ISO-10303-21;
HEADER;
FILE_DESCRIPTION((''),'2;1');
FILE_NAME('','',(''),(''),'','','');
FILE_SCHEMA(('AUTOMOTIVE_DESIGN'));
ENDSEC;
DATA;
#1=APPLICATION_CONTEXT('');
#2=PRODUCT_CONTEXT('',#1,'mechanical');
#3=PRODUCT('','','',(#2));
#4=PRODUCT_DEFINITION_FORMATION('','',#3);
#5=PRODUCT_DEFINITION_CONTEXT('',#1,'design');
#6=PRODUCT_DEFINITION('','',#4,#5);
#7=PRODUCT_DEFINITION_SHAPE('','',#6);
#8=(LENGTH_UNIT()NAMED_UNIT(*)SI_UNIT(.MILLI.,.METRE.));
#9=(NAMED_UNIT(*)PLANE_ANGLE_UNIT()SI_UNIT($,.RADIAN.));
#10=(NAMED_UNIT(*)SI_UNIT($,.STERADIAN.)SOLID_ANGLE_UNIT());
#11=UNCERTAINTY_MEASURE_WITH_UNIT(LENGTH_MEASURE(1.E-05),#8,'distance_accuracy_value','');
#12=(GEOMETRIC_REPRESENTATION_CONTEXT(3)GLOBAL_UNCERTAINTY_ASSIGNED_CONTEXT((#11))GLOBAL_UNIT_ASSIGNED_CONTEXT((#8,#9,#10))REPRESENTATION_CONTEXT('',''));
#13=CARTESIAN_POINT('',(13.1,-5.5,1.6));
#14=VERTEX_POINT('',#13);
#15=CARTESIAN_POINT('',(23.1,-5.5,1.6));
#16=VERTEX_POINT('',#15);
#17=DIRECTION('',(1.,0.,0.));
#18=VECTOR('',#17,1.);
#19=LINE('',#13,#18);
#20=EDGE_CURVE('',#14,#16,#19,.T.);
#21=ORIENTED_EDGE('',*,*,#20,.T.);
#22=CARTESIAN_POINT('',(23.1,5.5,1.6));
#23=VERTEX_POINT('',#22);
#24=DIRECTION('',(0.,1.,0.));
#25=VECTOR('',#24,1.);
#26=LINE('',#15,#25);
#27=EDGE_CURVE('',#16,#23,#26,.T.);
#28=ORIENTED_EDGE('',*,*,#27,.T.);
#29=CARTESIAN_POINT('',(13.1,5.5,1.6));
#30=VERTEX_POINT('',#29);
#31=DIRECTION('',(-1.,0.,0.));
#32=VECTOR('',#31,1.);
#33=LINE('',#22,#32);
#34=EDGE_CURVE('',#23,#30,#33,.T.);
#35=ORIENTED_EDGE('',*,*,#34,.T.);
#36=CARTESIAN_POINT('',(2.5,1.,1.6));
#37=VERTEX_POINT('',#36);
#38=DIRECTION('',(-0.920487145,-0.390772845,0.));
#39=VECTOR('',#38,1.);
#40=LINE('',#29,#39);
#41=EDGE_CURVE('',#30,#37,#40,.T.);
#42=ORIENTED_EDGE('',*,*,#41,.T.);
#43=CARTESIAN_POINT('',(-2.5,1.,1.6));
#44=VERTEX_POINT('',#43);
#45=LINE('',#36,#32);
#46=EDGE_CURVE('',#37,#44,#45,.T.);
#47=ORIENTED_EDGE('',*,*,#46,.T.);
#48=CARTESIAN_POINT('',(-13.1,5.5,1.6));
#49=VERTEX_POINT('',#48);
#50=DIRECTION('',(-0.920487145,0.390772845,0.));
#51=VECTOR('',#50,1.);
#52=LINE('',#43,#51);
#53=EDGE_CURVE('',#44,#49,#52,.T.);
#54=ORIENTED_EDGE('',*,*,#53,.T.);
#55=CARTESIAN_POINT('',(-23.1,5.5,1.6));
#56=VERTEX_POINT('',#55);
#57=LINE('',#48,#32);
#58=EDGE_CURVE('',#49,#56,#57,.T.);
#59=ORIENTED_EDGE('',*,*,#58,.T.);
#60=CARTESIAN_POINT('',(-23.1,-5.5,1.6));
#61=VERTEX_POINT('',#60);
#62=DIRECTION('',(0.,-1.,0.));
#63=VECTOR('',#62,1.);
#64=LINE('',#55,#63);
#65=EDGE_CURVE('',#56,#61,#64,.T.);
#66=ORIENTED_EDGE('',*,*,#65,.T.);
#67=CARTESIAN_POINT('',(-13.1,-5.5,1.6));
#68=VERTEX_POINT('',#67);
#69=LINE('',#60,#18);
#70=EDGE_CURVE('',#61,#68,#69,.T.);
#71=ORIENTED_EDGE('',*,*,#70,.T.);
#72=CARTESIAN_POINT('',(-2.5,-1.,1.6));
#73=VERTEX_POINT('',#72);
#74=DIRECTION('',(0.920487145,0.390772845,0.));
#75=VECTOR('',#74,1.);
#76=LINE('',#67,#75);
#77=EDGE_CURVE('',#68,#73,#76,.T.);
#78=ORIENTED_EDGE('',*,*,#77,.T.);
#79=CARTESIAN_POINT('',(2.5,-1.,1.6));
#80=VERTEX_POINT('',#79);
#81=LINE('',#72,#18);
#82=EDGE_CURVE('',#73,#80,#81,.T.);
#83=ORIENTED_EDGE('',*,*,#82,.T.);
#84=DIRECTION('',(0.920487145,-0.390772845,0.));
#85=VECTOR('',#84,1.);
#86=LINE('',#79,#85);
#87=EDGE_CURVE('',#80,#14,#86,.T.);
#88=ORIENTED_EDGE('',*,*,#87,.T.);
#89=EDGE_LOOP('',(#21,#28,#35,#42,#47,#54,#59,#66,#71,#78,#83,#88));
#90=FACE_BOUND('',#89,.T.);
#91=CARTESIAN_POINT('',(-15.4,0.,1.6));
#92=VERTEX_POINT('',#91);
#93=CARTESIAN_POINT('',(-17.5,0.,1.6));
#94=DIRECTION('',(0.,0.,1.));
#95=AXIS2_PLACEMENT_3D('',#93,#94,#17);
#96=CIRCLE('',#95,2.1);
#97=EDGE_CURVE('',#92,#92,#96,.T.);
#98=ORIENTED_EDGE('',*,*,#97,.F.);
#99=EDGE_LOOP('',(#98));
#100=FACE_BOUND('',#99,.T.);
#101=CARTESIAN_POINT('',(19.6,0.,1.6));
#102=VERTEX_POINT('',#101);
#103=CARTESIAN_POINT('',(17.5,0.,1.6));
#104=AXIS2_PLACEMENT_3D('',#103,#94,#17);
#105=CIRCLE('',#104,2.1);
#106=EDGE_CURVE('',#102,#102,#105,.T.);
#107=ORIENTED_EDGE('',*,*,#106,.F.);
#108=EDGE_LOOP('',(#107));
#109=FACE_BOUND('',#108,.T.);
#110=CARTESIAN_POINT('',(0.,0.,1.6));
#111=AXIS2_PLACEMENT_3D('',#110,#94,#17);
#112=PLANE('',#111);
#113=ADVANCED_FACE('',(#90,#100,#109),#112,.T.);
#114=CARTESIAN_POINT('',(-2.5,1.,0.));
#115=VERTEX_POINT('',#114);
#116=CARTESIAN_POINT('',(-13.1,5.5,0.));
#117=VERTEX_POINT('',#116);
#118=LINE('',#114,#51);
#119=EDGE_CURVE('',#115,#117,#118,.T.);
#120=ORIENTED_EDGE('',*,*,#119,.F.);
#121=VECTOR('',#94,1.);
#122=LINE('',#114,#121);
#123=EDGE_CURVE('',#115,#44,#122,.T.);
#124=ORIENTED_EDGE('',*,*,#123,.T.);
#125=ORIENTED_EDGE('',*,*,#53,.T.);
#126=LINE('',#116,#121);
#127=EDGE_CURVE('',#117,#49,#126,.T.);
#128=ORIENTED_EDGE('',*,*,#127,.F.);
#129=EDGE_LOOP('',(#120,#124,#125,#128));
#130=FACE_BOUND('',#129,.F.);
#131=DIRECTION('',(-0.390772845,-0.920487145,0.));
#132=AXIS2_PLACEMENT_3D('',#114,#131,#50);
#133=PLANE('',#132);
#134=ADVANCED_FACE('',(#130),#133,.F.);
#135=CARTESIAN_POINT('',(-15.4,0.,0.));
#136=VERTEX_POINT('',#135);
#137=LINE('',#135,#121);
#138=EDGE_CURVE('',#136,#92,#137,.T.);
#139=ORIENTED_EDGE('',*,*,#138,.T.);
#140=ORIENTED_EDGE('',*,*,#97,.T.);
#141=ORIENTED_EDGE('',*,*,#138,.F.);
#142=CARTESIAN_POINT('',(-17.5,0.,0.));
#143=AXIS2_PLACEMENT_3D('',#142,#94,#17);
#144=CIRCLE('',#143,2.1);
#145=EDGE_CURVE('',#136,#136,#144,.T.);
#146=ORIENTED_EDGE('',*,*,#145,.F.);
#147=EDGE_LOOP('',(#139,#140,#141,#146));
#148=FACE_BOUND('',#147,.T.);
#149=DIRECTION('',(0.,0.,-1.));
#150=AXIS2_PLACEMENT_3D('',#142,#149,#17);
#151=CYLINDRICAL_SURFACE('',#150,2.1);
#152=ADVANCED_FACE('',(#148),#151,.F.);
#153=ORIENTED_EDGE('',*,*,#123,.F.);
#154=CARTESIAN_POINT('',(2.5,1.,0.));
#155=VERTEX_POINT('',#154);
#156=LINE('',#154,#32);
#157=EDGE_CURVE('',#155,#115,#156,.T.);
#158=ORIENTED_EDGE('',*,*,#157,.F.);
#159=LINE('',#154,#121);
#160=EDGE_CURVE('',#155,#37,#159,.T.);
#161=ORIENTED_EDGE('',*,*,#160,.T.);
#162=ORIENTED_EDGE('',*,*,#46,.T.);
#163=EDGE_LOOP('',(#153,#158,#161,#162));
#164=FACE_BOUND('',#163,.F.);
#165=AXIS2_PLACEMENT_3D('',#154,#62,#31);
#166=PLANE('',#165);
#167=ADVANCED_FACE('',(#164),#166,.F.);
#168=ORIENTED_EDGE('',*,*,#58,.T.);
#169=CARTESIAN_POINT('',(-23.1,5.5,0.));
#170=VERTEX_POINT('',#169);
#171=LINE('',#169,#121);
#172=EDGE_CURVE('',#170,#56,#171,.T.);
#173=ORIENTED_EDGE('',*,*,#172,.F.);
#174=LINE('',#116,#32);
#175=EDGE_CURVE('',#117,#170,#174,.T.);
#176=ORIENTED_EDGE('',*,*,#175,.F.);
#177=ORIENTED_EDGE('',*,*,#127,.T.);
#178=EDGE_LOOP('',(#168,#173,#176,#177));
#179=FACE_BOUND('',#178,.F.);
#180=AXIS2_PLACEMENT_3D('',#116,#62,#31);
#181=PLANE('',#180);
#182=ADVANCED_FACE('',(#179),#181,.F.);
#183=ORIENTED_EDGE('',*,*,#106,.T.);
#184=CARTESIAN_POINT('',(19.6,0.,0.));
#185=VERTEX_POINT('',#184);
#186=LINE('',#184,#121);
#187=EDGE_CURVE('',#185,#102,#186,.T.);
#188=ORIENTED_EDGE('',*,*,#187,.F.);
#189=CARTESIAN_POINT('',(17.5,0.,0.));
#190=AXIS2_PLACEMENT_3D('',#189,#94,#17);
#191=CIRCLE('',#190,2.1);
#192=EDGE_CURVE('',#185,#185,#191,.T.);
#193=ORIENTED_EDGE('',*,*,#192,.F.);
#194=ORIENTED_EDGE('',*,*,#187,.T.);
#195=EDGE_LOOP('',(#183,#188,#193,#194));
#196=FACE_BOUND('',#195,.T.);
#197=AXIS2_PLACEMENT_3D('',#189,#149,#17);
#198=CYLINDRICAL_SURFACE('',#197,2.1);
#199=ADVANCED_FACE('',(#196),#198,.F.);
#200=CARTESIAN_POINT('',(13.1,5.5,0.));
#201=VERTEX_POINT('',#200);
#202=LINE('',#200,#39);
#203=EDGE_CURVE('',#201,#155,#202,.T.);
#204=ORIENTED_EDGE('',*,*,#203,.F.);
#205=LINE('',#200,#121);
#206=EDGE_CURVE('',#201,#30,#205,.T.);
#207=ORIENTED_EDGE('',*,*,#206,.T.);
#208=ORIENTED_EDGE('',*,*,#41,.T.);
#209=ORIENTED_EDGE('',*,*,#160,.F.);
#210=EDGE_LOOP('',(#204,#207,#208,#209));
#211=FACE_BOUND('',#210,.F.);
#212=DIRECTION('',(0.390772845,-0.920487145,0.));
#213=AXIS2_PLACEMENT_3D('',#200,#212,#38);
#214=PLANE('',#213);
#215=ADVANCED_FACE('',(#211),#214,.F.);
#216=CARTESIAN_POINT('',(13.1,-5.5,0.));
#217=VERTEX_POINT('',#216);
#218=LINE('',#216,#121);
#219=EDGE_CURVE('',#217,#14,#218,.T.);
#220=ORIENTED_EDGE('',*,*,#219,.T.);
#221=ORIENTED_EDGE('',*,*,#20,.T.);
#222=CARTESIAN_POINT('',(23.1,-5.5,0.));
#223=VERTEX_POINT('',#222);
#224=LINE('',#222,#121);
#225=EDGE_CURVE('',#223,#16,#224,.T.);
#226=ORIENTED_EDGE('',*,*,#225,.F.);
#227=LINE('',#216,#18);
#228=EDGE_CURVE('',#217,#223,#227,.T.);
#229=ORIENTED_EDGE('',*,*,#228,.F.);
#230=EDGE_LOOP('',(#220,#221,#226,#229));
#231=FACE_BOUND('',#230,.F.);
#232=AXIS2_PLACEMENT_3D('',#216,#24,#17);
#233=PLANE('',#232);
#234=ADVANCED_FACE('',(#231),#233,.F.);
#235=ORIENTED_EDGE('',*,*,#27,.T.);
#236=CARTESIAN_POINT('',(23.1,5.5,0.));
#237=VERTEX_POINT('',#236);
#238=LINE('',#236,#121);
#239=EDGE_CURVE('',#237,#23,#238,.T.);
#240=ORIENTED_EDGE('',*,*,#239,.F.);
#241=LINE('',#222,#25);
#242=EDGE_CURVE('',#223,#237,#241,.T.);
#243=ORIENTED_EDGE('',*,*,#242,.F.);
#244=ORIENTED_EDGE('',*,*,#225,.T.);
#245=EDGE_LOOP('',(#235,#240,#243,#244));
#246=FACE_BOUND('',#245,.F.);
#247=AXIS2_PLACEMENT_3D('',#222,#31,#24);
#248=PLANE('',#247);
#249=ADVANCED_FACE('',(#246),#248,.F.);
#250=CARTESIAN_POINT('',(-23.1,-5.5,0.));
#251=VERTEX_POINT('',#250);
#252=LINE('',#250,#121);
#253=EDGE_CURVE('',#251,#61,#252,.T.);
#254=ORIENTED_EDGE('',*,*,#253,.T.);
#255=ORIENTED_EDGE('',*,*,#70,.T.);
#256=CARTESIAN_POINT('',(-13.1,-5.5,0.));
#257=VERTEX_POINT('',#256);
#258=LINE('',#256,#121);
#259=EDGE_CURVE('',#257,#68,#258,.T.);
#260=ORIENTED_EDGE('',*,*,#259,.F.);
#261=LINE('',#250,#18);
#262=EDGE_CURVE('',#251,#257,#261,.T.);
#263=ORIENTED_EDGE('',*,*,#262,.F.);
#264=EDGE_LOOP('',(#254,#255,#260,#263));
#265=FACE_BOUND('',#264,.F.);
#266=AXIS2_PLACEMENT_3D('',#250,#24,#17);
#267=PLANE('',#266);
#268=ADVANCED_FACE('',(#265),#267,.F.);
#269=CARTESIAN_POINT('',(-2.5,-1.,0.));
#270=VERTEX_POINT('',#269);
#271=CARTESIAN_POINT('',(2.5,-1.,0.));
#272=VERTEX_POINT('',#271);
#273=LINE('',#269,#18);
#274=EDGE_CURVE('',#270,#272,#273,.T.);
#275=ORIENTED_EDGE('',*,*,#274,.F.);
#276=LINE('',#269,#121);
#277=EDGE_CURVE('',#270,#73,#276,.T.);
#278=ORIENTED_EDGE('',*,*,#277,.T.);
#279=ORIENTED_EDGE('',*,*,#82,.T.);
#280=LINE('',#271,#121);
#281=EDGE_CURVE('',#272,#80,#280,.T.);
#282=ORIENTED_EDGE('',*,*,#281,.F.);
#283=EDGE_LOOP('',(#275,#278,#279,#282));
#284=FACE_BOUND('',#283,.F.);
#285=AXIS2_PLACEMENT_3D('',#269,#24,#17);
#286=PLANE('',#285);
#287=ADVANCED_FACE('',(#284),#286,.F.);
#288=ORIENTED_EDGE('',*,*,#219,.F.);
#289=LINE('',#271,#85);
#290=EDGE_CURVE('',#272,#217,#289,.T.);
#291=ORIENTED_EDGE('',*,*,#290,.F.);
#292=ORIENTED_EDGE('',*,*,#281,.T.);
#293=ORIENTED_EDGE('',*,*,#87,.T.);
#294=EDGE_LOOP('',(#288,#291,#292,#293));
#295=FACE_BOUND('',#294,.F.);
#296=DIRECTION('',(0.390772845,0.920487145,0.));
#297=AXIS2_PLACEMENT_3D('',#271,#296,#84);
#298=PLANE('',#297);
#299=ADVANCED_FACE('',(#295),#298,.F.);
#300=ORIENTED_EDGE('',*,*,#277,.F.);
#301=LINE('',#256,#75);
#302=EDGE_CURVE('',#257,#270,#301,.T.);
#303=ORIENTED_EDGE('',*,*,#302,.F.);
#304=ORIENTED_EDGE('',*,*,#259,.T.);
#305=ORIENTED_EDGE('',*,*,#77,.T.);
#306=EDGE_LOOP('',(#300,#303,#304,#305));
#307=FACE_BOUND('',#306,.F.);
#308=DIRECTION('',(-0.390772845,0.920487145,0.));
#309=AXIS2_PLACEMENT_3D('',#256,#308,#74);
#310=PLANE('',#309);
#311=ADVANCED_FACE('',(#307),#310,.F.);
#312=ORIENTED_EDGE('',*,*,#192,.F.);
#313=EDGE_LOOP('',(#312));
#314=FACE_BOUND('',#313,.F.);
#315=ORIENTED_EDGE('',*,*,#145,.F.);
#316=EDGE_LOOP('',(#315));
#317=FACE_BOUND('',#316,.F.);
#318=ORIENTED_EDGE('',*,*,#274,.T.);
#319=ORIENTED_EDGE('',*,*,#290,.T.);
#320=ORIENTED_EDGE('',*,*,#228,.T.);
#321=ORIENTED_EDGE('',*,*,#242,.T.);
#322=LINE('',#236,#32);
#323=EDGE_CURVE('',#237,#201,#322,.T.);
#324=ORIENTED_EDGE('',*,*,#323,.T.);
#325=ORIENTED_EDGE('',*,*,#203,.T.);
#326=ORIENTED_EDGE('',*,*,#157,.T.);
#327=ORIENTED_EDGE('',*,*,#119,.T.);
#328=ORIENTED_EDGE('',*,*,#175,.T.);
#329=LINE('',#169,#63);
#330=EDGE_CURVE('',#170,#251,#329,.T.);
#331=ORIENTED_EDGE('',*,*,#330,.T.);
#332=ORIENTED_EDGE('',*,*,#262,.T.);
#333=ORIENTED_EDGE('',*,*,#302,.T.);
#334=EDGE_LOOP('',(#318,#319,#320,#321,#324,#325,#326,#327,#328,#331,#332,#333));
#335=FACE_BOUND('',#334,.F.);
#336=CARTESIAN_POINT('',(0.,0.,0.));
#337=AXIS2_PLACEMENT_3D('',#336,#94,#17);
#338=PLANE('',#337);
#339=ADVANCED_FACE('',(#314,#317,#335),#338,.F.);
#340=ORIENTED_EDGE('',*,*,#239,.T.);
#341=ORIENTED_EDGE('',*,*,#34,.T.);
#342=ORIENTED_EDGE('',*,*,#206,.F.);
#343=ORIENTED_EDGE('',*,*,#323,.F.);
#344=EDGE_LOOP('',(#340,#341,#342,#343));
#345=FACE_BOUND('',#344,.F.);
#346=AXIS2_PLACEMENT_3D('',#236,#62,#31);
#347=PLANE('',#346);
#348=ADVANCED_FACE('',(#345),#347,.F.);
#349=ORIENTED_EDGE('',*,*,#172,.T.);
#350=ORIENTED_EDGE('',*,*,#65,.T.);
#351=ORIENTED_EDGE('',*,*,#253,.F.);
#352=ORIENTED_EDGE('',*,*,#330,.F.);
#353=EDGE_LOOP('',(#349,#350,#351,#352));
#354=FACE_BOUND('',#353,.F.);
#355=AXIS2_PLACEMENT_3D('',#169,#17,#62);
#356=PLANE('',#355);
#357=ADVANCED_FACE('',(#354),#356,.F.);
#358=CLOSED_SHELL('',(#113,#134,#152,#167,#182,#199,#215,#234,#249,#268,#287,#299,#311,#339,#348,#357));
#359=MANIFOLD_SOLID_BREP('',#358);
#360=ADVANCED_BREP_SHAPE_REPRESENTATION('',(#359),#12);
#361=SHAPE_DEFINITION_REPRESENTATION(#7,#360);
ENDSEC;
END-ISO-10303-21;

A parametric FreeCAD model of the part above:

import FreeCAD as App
import Part
import Sketcher
from FreeCAD import Vector
Q = App.Units.Quantity

doc = App.newDocument("Part")
body = doc.addObject("PartDesign::Body", "Body")

# Sketch on XY plane
sketch1 = doc.addObject("Sketcher::SketchObject", "Sketch")
body.addObject(sketch1)
sketch1.AttachmentSupport = (doc.XY_Plane, [""])
sketch1.MapMode = "FlatFace"
sketch1.addGeometry([
    Part.LineSegment(Vector(-13.1, 5.5, 0), Vector(-23.1, 5.5, 0)),  # 0
    Part.LineSegment(Vector(-23.1, 5.5, 0), Vector(-23.1, -5.5, 0)),  # 1
    Part.LineSegment(Vector(-23.1, -5.5, 0), Vector(-13.1, -5.5, 0)),  # 2
    Part.LineSegment(Vector(-13.1, -5.5, 0), Vector(-2.5, -1, 0)),  # 3
    Part.LineSegment(Vector(-2.5, -1, 0), Vector(2.5, -1, 0)),  # 4
    Part.LineSegment(Vector(2.5, -1, 0), Vector(13.1, -5.5, 0)),  # 5
    Part.LineSegment(Vector(13.1, -5.5, 0), Vector(23.1, -5.5, 0)),  # 6
    Part.LineSegment(Vector(23.1, -5.5, 0), Vector(23.1, 5.5, 0)),  # 7
    Part.LineSegment(Vector(23.1, 5.5, 0), Vector(13.1, 5.5, 0)),  # 8
    Part.LineSegment(Vector(13.1, 5.5, 0), Vector(2.5, 1, 0)),  # 9
    Part.LineSegment(Vector(2.5, 1, 0), Vector(-2.5, 1, 0)),  # 10
    Part.LineSegment(Vector(-2.5, 1, 0), Vector(-13.1, 5.5, 0)),  # 11
    Part.Circle(Vector(-17.5, 0, 0), Vector(0, 0, 1), 2.1),  # 12
    Part.Circle(Vector(17.5, 0, 0), Vector(0, 0, 1), 2.1),  # 13
], False)
sketch1.addConstraint([
    Sketcher.Constraint("Coincident", 0, 2, 1, 1),
    Sketcher.Constraint("Coincident", 1, 2, 2, 1),
    Sketcher.Constraint("Coincident", 2, 2, 3, 1),
    Sketcher.Constraint("Coincident", 3, 2, 4, 1),
    Sketcher.Constraint("Coincident", 4, 2, 5, 1),
    Sketcher.Constraint("Coincident", 5, 2, 6, 1),
    Sketcher.Constraint("Coincident", 6, 2, 7, 1),
    Sketcher.Constraint("Coincident", 7, 2, 8, 1),
    Sketcher.Constraint("Coincident", 8, 2, 9, 1),
    Sketcher.Constraint("Coincident", 9, 2, 10, 1),
    Sketcher.Constraint("Coincident", 10, 2, 11, 1),
    Sketcher.Constraint("Coincident", 11, 2, 0, 1),
    Sketcher.Constraint("Horizontal", 0),
    Sketcher.Constraint("Vertical", 1),
    Sketcher.Constraint("Horizontal", 2),
    Sketcher.Constraint("Horizontal", 4),
    Sketcher.Constraint("Horizontal", 6),
    Sketcher.Constraint("Vertical", 7),
    Sketcher.Constraint("Horizontal", 8),
    Sketcher.Constraint("Horizontal", 10),
    Sketcher.Constraint("Equal", 12, 13),
    Sketcher.Constraint("Symmetric", 12, 3, 13, 3, -1, 1),
    Sketcher.Constraint("Symmetric", 0, 2, 6, 2, -1, 1),
    Sketcher.Constraint("Symmetric", 2, 2, 8, 2, -1, 1),
    Sketcher.Constraint("Symmetric", 3, 2, 9, 2, -1, 1),
    Sketcher.Constraint("Symmetric", 2, 2, 5, 2, -2),
    Sketcher.Constraint("PointOnObject", 12, 3, -1),
    Sketcher.Constraint("Parallel", 5, 11),
    Sketcher.Constraint("Vertical", 4, 2, 9, 2),
    Sketcher.Constraint("Vertical", 3, 2, 10, 2),
    Sketcher.Constraint("Diameter", 12, Q("4.2 mm")),
    Sketcher.Constraint("DistanceX", 0, 2, 0, 1, Q("10 mm")),
    Sketcher.Constraint("DistanceX", 4, 1, 4, 2, Q("5 mm")),
    Sketcher.Constraint("DistanceY", 1, 2, 1, 1, Q("11 mm")),
    Sketcher.Constraint("DistanceX", 12, 3, 13, 3, Q("35 mm")),
    Sketcher.Constraint("DistanceY", 4, 2, 9, 2, Q("2 mm")),
    Sketcher.Constraint("DistanceX", 0, 2, -1, 1, Q("23.1 mm")),
])
pad1 = doc.addObject("PartDesign::Pad", "Pad")
body.addObject(pad1)
pad1.Profile = sketch1
pad1.Length = 1.6

doc.recompute()
